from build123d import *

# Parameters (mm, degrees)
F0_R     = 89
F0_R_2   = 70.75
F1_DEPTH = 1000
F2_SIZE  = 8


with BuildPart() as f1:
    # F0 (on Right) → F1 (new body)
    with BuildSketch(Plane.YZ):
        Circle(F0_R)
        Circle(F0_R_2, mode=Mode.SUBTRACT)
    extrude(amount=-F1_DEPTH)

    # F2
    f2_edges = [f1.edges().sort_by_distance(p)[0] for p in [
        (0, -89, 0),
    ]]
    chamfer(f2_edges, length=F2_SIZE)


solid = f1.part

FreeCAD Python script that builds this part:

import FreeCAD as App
import Part
import Sketcher
Q = App.Units.Quantity


def edges_at(feature, points):
    """Names of the edges that pass closest to the given points."""
    edges = feature.Shape.Edges
    near = lambda p: min(range(len(edges)), key=lambda i: edges[i].distToShape(Part.Vertex(*p))[0])
    return sorted({f"Edge{near(p) + 1}" for p in points})

doc = App.newDocument("Part")
body = doc.addObject("PartDesign::Body", "Body")

sketch1 = doc.addObject("Sketcher::SketchObject", "Sketch")
body.addObject(sketch1)
sketch1.AttachmentSupport = (doc.YZ_Plane, [""])
sketch1.MapMode = "FlatFace"
sketch1.addGeometry(Part.Circle(App.Vector(0, 0, 0), App.Vector(0, 0, 1), 89), False)
sketch1.addGeometry(Part.Circle(App.Vector(0, 0, 0), App.Vector(0, 0, 1), 70.75), False)
sketch1.addConstraint(Sketcher.Constraint("Coincident", 0, 3, -1, 1))
sketch1.addConstraint(Sketcher.Constraint("Coincident", 1, 3, -1, 1))
sketch1.addConstraint(Sketcher.Constraint("Diameter", 0, Q("178 mm")))
sketch1.addConstraint(Sketcher.Constraint("Diameter", 1, Q("141.5 mm")))
pad1 = doc.addObject("PartDesign::Pad", "Pad")
body.addObject(pad1)
pad1.Profile = sketch1
pad1.Length = 1000
pad1.Reversed = True
doc.recompute()

chamfer = doc.addObject("PartDesign::Chamfer", "Chamfer")
body.addObject(chamfer)
chamfer.Base = (pad1, edges_at(pad1, [(0, -89, 0)]))
chamfer.Size = 8

doc.recompute()
